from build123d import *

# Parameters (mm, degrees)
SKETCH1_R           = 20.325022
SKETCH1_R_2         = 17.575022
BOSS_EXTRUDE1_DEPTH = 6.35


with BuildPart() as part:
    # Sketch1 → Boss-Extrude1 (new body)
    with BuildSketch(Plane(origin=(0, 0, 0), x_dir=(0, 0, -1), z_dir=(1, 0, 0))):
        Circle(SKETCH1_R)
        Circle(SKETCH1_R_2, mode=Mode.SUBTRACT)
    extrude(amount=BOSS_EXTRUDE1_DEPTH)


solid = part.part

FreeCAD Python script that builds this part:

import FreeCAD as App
import Part
import Sketcher
Q = App.Units.Quantity

doc = App.newDocument("Part")
body = doc.addObject("PartDesign::Body", "Body")

# Sketch on YZ plane
sketch1 = doc.addObject("Sketcher::SketchObject", "Sketch")
body.addObject(sketch1)
sketch1.AttachmentSupport = (doc.YZ_Plane, [""])
sketch1.MapMode = "FlatFace"
sketch1.addGeometry([
    Part.Circle(App.Vector(0, 0, 0), App.Vector(0, 0, 1), 20.325022),
    Part.Circle(App.Vector(0, 0, 0), App.Vector(0, 0, 1), 17.575022),
], False)
sketch1.addConstraint([
    Sketcher.Constraint("Coincident", 0, 3, -1, 1),
    Sketcher.Constraint("Coincident", 1, 3, -1, 1),
    Sketcher.Constraint("Diameter", 0, Q("40.650044 mm")),
    Sketcher.Constraint("Diameter", 1, Q("35.150044 mm")),
])
pad1 = doc.addObject("PartDesign::Pad", "Pad")
body.addObject(pad1)
pad1.Profile = sketch1
pad1.Length = Q("0.25 in")

doc.recompute()
